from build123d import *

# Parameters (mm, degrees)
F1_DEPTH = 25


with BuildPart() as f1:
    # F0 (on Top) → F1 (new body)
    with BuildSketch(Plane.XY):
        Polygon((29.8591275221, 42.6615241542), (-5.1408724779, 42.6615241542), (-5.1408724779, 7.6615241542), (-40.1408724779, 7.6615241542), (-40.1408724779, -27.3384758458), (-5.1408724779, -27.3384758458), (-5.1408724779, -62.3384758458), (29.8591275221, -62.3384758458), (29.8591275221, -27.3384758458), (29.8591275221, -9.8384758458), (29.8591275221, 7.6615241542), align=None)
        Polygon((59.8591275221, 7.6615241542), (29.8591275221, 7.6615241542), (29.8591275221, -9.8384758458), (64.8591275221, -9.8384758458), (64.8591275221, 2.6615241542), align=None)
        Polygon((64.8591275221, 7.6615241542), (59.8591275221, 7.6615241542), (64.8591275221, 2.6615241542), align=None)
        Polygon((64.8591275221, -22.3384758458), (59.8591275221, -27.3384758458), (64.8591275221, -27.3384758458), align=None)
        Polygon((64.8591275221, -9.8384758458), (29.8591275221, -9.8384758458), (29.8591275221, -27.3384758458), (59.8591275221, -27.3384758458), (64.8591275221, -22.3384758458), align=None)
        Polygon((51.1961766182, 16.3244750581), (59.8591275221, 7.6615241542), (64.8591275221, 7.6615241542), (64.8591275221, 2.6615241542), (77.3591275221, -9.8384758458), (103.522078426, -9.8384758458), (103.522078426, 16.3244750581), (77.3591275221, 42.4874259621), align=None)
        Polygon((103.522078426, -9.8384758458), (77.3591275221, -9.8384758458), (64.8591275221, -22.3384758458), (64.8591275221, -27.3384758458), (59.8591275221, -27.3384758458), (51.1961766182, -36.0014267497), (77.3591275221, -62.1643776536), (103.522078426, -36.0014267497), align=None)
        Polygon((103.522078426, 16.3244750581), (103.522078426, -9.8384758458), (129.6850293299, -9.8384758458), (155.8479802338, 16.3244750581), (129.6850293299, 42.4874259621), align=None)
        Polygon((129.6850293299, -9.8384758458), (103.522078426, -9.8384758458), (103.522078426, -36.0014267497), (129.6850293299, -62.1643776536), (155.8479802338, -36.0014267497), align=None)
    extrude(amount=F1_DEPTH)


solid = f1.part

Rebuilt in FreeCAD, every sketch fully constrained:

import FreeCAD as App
import Part
import Sketcher

V = App.Vector


def add_polygon(sketch, points):
    """Adds a closed chain of lines whose ends are joined by coincident constraints."""
    first, n = sketch.GeometryCount, len(points)
    for a, b in zip(points, points[1:] + points[:1]):
        sketch.addGeometry(Part.LineSegment(App.Vector(*a, 0), App.Vector(*b, 0)), False)
    for i in range(n):
        sketch.addConstraint(Sketcher.Constraint("Coincident", first + i, 2, first + (i + 1) % n, 1))

doc = App.newDocument("Part")
body = doc.addObject("PartDesign::Body", "Body")

sketch1 = body.newObject("Sketcher::SketchObject", "Sketch")
sketch1.AttachmentSupport = (doc.getObject("XY_Plane"), [""])
sketch1.MapMode = "FlatFace"
add_polygon(sketch1, [(59.859128, 7.661524), (29.859128, 7.661524), (29.859128, 42.661524), (-5.140872, 42.661524), (-5.140872, 7.661524), (-40.140872, 7.661524), (-40.140872, -27.338476), (-5.140872, -27.338476), (-5.140872, -62.338476), (29.859128, -62.338476), (29.859128, -27.338476), (59.859128, -27.338476), (51.196177, -36.001427), (77.359128, -62.164378), (103.522078, -36.001427), (129.685029, -62.164378), (155.84798, -36.001427), (129.685029, -9.838476), (155.84798, 16.324475), (129.685029, 42.487426), (103.522078, 16.324475), (77.359128, 42.487426), (51.196177, 16.324475)])
add_polygon(sketch1, [(77.359128, -9.838476), (64.859128, -22.338476), (64.859128, 2.661524)])
sketch1.addConstraint([
    Sketcher.Constraint("Horizontal", 0),
    Sketcher.Constraint("Vertical", 1),
    Sketcher.Constraint("Horizontal", 2),
    Sketcher.Constraint("Vertical", 3),
    Sketcher.Constraint("Horizontal", 4),
    Sketcher.Constraint("Vertical", 5),
    Sketcher.Constraint("Horizontal", 6),
    Sketcher.Constraint("Vertical", 7),
    Sketcher.Constraint("Horizontal", 8),
    Sketcher.Constraint("Vertical", 9),
    Sketcher.Constraint("Horizontal", 10),
    Sketcher.Constraint("Vertical", 24),
    Sketcher.Constraint("Perpendicular", 11, 12),
    Sketcher.Constraint("Perpendicular", 12, 13),
    Sketcher.Constraint("Perpendicular", 13, 14),
    Sketcher.Constraint("Perpendicular", 14, 15),
    Sketcher.Constraint("Perpendicular", 15, 16),
    Sketcher.Constraint("Perpendicular", 16, 17),
    Sketcher.Constraint("Perpendicular", 17, 18),
    Sketcher.Constraint("Perpendicular", 18, 19),
    Sketcher.Constraint("Perpendicular", 19, 20),
    Sketcher.Constraint("Perpendicular", 20, 21),
    Sketcher.Constraint("Perpendicular", 21, 22),
    Sketcher.Constraint("Perpendicular", 22, 23),
    Sketcher.Constraint("Perpendicular", 23, 25),
    Sketcher.Constraint("Horizontal", 0, 2, 3, 2),
    Sketcher.Constraint("Horizontal", 6, 2, 9, 2),
    Sketcher.Constraint("Horizontal", 11, 2, 13, 2),
    Sketcher.Constraint("Horizontal", 12, 2, 14, 2),
    Sketcher.Constraint("Horizontal", 13, 2, 15, 2),
    Sketcher.Constraint("Horizontal", 17, 2, 19, 2),
    Sketcher.Constraint("Horizontal", 18, 2, 20, 2),
    Sketcher.Constraint("Horizontal", 19, 2, 21, 2),
    Sketcher.Constraint("Horizontal", 16, 2, 25, 2),
    Sketcher.Constraint("Vertical", 3, 2, 6, 2),
    Sketcher.Constraint("Vertical", 1, 2, 8, 2),
    Sketcher.Constraint("Vertical", 14, 2, 16, 2),
    Sketcher.Constraint("Vertical", 15, 2, 17, 2),
    Sketcher.Constraint("Vertical", 16, 2, 18, 2),
    Sketcher.Constraint("Vertical", 13, 2, 19, 2),
    Sketcher.Constraint("Vertical", 10, 2, 22, 2),
    Sketcher.Constraint("Vertical", 20, 2, 25, 2),
    Sketcher.Constraint("Equal", 2, 4),
    Sketcher.Constraint("Equal", 8, 1),
    Sketcher.Constraint("Equal", 3, 5),
    Sketcher.Constraint("Equal", 5, 7),
    Sketcher.Constraint("DistanceX", 0, 2, 0, 1, 30.0),
    Sketcher.Constraint("DistanceX", 2, 2, 2, 1, 35.0),
    Sketcher.Constraint("DistanceY", 24, 1, 24, 2, 25.0),
    Sketcher.Constraint("Distance", 12, 37.0),
    Sketcher.Constraint("DistanceX", -1, 1, 13, 2, 103.522078),
    Sketcher.Constraint("DistanceY", -1, 1, 0, 2, 7.661524),
])
pad1 = body.newObject("PartDesign::Pad", "Pad")
pad1.Profile = sketch1
pad1.Length = 25

doc.recompute()
